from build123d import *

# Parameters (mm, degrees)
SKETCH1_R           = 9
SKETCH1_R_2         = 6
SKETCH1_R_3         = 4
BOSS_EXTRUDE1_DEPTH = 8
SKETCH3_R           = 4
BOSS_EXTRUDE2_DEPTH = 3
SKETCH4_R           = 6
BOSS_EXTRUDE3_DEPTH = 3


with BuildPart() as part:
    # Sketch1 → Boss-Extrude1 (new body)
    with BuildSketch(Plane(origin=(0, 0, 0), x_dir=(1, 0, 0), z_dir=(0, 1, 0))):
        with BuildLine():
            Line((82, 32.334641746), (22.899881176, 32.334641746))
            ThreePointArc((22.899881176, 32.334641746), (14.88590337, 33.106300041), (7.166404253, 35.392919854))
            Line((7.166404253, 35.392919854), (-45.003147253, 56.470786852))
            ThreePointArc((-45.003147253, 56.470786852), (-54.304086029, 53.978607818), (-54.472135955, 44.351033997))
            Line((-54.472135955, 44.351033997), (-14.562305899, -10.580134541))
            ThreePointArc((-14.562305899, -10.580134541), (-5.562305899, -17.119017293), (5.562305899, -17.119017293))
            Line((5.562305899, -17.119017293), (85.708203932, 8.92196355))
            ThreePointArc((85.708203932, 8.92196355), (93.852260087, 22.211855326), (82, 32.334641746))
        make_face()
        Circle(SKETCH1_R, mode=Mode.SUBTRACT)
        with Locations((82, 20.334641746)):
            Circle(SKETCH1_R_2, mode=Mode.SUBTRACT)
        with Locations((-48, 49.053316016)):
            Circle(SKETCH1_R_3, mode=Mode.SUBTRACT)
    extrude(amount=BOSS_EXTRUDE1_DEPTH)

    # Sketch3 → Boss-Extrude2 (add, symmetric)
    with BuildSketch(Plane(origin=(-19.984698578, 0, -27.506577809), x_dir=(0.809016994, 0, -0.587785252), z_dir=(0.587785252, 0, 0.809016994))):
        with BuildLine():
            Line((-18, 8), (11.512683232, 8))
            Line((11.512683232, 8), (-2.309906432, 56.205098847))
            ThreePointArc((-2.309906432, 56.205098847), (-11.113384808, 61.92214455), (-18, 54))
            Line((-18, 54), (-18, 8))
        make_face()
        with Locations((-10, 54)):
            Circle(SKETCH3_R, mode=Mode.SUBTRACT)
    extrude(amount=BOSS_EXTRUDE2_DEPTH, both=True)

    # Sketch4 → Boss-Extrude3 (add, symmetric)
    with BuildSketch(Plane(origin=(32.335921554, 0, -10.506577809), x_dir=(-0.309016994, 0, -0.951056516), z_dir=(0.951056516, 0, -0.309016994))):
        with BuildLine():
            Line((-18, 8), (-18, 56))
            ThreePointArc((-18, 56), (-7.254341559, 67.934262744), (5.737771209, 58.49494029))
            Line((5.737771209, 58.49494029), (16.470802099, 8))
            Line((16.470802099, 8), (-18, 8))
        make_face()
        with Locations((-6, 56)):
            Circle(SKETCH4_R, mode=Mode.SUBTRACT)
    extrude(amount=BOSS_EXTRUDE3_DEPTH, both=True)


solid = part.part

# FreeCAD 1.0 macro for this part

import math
import FreeCAD as App
import Part
import Sketcher
Q = App.Units.Quantity

doc = App.newDocument("Part")
params = doc.addObject("Spreadsheet::Sheet", "Params")
for row, (alias, value) in enumerate([
    ("sketch1_diameter", "18 mm"),
    ("sketch1_diameter2", "12 mm"),
    ("sketch1_diameter3", "8 mm"),
    ("sketch1_radius", "42 mm"),
    ("sketch1_radius2", "8 mm"),
    ("pad1_length", "8 mm"),
    ("sketch2_diameter", "8 mm"),
    ("sketch2_radius", "8 mm"),
    ("sketch2_height", "46 mm"),
    ("pad2_length", "6 mm"),
    ("sketch3_diameter", "12 mm"),
    ("sketch3_radius", "12 mm"),
    ("sketch3_height", "48 mm"),
    ("pad3_length", "6 mm"),
], start=1):
    params.set(f"A{row}", alias)
    params.set(f"B{row}", "=" + value)
    params.setAlias(f"B{row}", alias)

body = doc.addObject("PartDesign::Body", "Body")

sketch1 = body.newObject("Sketcher::SketchObject", "Sketch")
sketch1.AttachmentSupport = (doc.getObject("XZ_Plane"), [""])
sketch1.MapMode = "FlatFace"
sketch1.addGeometry([
    Part.LineSegment(App.Vector(82, -32.334642, 0), App.Vector(22.899881, -32.334642, 0)),
    Part.ArcOfCircle(Part.Circle(App.Vector(22.899881, -74.334642, 0), App.Vector(0, 0, 1), 42), math.radians(90), math.radians(112)),
    Part.LineSegment(App.Vector(7.166404, -35.39292, 0), App.Vector(-45.003147, -56.470787, 0)),
    Part.ArcOfCircle(Part.Circle(App.Vector(-48, -49.053316, 0), App.Vector(0, 0, 1), 8), math.radians(144), math.radians(292)),
    Part.LineSegment(App.Vector(-54.472136, -44.351034, 0), App.Vector(-14.562306, 10.580135, 0)),
    Part.ArcOfCircle(Part.Circle(App.Vector(0, 0, 0), App.Vector(0, 0, 1), 18), math.radians(72), math.radians(144)),
    Part.LineSegment(App.Vector(5.562306, 17.119017, 0), App.Vector(85.708204, -8.921964, 0)),
    Part.ArcOfCircle(Part.Circle(App.Vector(82, -20.334642, 0), App.Vector(0, 0, 1), 12), math.radians(-90), math.radians(72)),
    Part.Circle(App.Vector(0, 0, 0), App.Vector(0, 0, 1), 9),
    Part.Circle(App.Vector(82, -20.334642, 0), App.Vector(0, 0, 1), 6),
    Part.Circle(App.Vector(-48, -49.053316, 0), App.Vector(0, 0, 1), 4),
], False)
sketch1.addConstraint([
    Sketcher.Constraint("Tangent", 0, 2, 1, 1),
    Sketcher.Constraint("Tangent", 1, 2, 2, 1),
    Sketcher.Constraint("Tangent", 2, 2, 3, 2),
    Sketcher.Constraint("Tangent", 3, 1, 4, 1),
    Sketcher.Constraint("Tangent", 4, 2, 5, 2),
    Sketcher.Constraint("Tangent", 5, 1, 6, 1),
    Sketcher.Constraint("Tangent", 6, 2, 7, 2),
    Sketcher.Constraint("Tangent", 7, 1, 0, 1),
    Sketcher.Constraint("Horizontal", 0),
    Sketcher.Constraint("Coincident", 5, 3, -1, 1),
    Sketcher.Constraint("Coincident", 8, 3, -1, 1),
    Sketcher.Constraint("Coincident", 9, 3, 7, 3),
    Sketcher.Constraint("Coincident", 10, 3, 3, 3),
    Sketcher.Constraint("Diameter", 8, 18.0),
    Sketcher.Constraint("Diameter", 9, 12.0),
    Sketcher.Constraint("Diameter", 10, 8.0),
    Sketcher.Constraint("Radius", 1, 42.0),
    Sketcher.Constraint("Radius", 3, 8.0),
    Sketcher.Constraint("Radius", 5, 18.0),
    Sketcher.Constraint("Radius", 7, 12.0),
    Sketcher.Constraint("Angle", 2, Q("-158 deg")),
    Sketcher.Constraint("Angle", 4, Q("54 deg")),
    Sketcher.Constraint("Angle", 6, Q("-18 deg")),
    Sketcher.Constraint("DistanceX", 3, 3, -1, 1, 48.0),
    Sketcher.Constraint("DistanceX", -1, 1, 7, 3, 82.0),
])
sketch1.setExpression("Constraints[13]", "Params.sketch1_diameter")
sketch1.setExpression("Constraints[14]", "Params.sketch1_diameter2")
sketch1.setExpression("Constraints[15]", "Params.sketch1_diameter3")
sketch1.setExpression("Constraints[16]", "Params.sketch1_radius")
sketch1.setExpression("Constraints[17]", "Params.sketch1_radius2")
pad1 = body.newObject("PartDesign::Pad", "Pad")
pad1.Profile = sketch1
pad1.setExpression("Length", "Params.pad1_length")
pad1.Reversed = True

sketch2 = body.newObject("Sketcher::SketchObject", "Sketch001")
sketch2.Placement = App.Placement(App.Vector(-19.984699, 0, -27.506578), App.Rotation(App.Vector(0.809016994, 0, -0.587785252), App.Vector(0, 0.999999999, 0), App.Vector(0.587785252, 0, 0.809016994), "ZXY"))
sketch2.addGeometry([
    Part.LineSegment(App.Vector(-18, 8, 0), App.Vector(11.512683, 8, 0)),
    Part.LineSegment(App.Vector(11.512683, 8, 0), App.Vector(-2.309906, 56.205099, 0)),
    Part.ArcOfCircle(Part.Circle(App.Vector(-10, 54, 0), App.Vector(0, 0, 1), 8), math.radians(16), math.radians(180)),
    Part.LineSegment(App.Vector(-18, 54, 0), App.Vector(-18, 8, 0)),
    Part.Circle(App.Vector(-10, 54, 0), App.Vector(0, 0, 1), 4),
], False)
sketch2.addConstraint([
    Sketcher.Constraint("Coincident", 0, 2, 1, 1),
    Sketcher.Constraint("Tangent", 1, 2, 2, 1),
    Sketcher.Constraint("Tangent", 2, 2, 3, 1),
    Sketcher.Constraint("Coincident", 3, 2, 0, 1),
    Sketcher.Constraint("Horizontal", 0),
    Sketcher.Constraint("Vertical", 3),
    Sketcher.Constraint("Coincident", 4, 3, 2, 3),
    Sketcher.Constraint("Diameter", 4, 8.0),
    Sketcher.Constraint("Radius", 2, 8.0),
    Sketcher.Constraint("DistanceY", 3, 2, 3, 1, 46.0),
    Sketcher.Constraint("Angle", 1, Q("106 deg")),
    Sketcher.Constraint("DistanceX", 2, 3, -1, 1, 10.0),
    Sketcher.Constraint("DistanceY", -1, 1, 2, 3, 54.0),
])
sketch2.setExpression("Constraints[7]", "Params.sketch2_diameter")
sketch2.setExpression("Constraints[8]", "Params.sketch2_radius")
sketch2.setExpression("Constraints[9]", "Params.sketch2_height")
pad2 = body.newObject("PartDesign::Pad", "Pad001")
pad2.Profile = sketch2
pad2.setExpression("Length", "Params.pad2_length")
pad2.Midplane = True

sketch3 = body.newObject("Sketcher::SketchObject", "Sketch002")
sketch3.Placement = App.Placement(App.Vector(32.335922, 0, -10.506578), App.Rotation(App.Vector(-0.309016994, 0, -0.951056516), App.Vector(0, 0.999999999, 0), App.Vector(0.951056516, 0, -0.309016994), "ZXY"))
sketch3.addGeometry([
    Part.LineSegment(App.Vector(-18, 56, 0), App.Vector(-18, 8, 0)),
    Part.LineSegment(App.Vector(-18, 8, 0), App.Vector(16.470802, 8, 0)),
    Part.LineSegment(App.Vector(16.470802, 8, 0), App.Vector(5.737771, 58.49494, 0)),
    Part.ArcOfCircle(Part.Circle(App.Vector(-6, 56, 0), App.Vector(0, 0, 1), 12), math.radians(12), math.radians(180)),
    Part.Circle(App.Vector(-6, 56, 0), App.Vector(0, 0, 1), 6),
], False)
sketch3.addConstraint([
    Sketcher.Constraint("Coincident", 0, 2, 1, 1),
    Sketcher.Constraint("Coincident", 1, 2, 2, 1),
    Sketcher.Constraint("Tangent", 2, 2, 3, 1),
    Sketcher.Constraint("Tangent", 3, 2, 0, 1),
    Sketcher.Constraint("Vertical", 0),
    Sketcher.Constraint("Horizontal", 1),
    Sketcher.Constraint("Coincident", 4, 3, 3, 3),
    Sketcher.Constraint("Diameter", 4, 12.0),
    Sketcher.Constraint("Radius", 3, 12.0),
    Sketcher.Constraint("DistanceY", 0, 2, 0, 1, 48.0),
    Sketcher.Constraint("Angle", 2, Q("102 deg")),
    Sketcher.Constraint("DistanceX", 3, 3, -1, 1, 6.0),
    Sketcher.Constraint("DistanceY", -1, 1, 3, 3, 56.0),
])
sketch3.setExpression("Constraints[7]", "Params.sketch3_diameter")
sketch3.setExpression("Constraints[8]", "Params.sketch3_radius")
sketch3.setExpression("Constraints[9]", "Params.sketch3_height")
pad3 = body.newObject("PartDesign::Pad", "Pad002")
pad3.Profile = sketch3
pad3.setExpression("Length", "Params.pad3_length")
pad3.Midplane = True

doc.recompute()
